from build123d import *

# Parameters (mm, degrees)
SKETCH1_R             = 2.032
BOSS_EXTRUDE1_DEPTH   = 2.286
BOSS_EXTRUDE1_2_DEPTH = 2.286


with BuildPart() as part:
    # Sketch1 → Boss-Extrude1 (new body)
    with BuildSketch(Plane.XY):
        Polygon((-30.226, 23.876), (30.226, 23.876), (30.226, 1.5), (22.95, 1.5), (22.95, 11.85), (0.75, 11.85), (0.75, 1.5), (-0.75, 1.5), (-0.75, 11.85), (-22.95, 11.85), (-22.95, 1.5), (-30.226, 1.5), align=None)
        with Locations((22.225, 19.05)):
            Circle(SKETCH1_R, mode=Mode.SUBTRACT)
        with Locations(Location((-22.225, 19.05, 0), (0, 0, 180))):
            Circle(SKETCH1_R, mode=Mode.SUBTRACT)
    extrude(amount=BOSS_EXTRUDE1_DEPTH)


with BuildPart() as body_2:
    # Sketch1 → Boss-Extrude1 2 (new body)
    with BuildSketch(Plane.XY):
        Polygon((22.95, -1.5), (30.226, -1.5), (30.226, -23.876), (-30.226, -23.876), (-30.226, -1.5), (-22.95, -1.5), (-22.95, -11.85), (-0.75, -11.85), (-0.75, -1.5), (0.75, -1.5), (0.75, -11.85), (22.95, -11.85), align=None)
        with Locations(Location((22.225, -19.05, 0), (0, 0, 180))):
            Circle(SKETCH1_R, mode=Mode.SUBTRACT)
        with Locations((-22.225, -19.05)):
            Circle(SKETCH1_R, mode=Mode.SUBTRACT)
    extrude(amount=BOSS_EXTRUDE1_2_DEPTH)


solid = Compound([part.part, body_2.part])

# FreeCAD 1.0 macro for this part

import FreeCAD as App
import Part
import Sketcher
Q = App.Units.Quantity

doc = App.newDocument("Part")
params = doc.addObject("Spreadsheet::Sheet", "Params")
for row, (alias, value) in enumerate([
    ("sketch1_diameter", "0.16 in"),
    ("sketch1_width", "2.38 in"),
    ("pad1_length", "0.09 in"),
    ("sketch2_diameter", "0.16 in"),
    ("sketch2_width", "2.38 in"),
    ("pad2_length", "0.09 in"),
], start=1):
    params.set(f"A{row}", alias)
    params.set(f"B{row}", "=" + value)
    params.setAlias(f"B{row}", alias)

body = doc.addObject("PartDesign::Body", "Body")

# Sketch on XY plane
sketch1 = body.newObject("Sketcher::SketchObject", "Sketch")
sketch1.AttachmentSupport = (doc.getObject("XY_Plane"), [""])
sketch1.MapMode = "FlatFace"
sketch1.addGeometry([
    Part.LineSegment(App.Vector(30.226, 23.876, 0), App.Vector(-30.226, 23.876, 0)),  # 0
    Part.LineSegment(App.Vector(-30.226, 23.876, 0), App.Vector(-30.226, 1.5, 0)),  # 1
    Part.LineSegment(App.Vector(-30.226, 1.5, 0), App.Vector(-22.95, 1.5, 0)),  # 2
    Part.LineSegment(App.Vector(-22.95, 1.5, 0), App.Vector(-22.95, 11.85, 0)),  # 3
    Part.LineSegment(App.Vector(-22.95, 11.85, 0), App.Vector(-0.75, 11.85, 0)),  # 4
    Part.LineSegment(App.Vector(-0.75, 11.85, 0), App.Vector(-0.75, 1.5, 0)),  # 5
    Part.LineSegment(App.Vector(-0.75, 1.5, 0), App.Vector(0.75, 1.5, 0)),  # 6
    Part.LineSegment(App.Vector(0.75, 1.5, 0), App.Vector(0.75, 11.85, 0)),  # 7
    Part.LineSegment(App.Vector(0.75, 11.85, 0), App.Vector(22.95, 11.85, 0)),  # 8
    Part.LineSegment(App.Vector(22.95, 11.85, 0), App.Vector(22.95, 1.5, 0)),  # 9
    Part.LineSegment(App.Vector(22.95, 1.5, 0), App.Vector(30.226, 1.5, 0)),  # 10
    Part.LineSegment(App.Vector(30.226, 1.5, 0), App.Vector(30.226, 23.876, 0)),  # 11
    Part.Circle(App.Vector(22.225, 19.05, 0), App.Vector(0, 0, 1), 2.032),  # 12
    Part.Circle(App.Vector(-22.225, 19.05, 0), App.Vector(0, 0, 1), 2.032),  # 13
], False)
sketch1.addConstraint([
    Sketcher.Constraint("Coincident", 0, 2, 1, 1),
    Sketcher.Constraint("Coincident", 1, 2, 2, 1),
    Sketcher.Constraint("Coincident", 2, 2, 3, 1),
    Sketcher.Constraint("Coincident", 3, 2, 4, 1),
    Sketcher.Constraint("Coincident", 4, 2, 5, 1),
    Sketcher.Constraint("Coincident", 5, 2, 6, 1),
    Sketcher.Constraint("Coincident", 6, 2, 7, 1),
    Sketcher.Constraint("Coincident", 7, 2, 8, 1),
    Sketcher.Constraint("Coincident", 8, 2, 9, 1),
    Sketcher.Constraint("Coincident", 9, 2, 10, 1),
    Sketcher.Constraint("Coincident", 10, 2, 11, 1),
    Sketcher.Constraint("Coincident", 11, 2, 0, 1),
    Sketcher.Constraint("Horizontal", 0),
    Sketcher.Constraint("Vertical", 1),
    Sketcher.Constraint("Horizontal", 2),
    Sketcher.Constraint("Vertical", 3),
    Sketcher.Constraint("Horizontal", 4),
    Sketcher.Constraint("Vertical", 5),
    Sketcher.Constraint("Horizontal", 6),
    Sketcher.Constraint("Vertical", 7),
    Sketcher.Constraint("Horizontal", 8),
    Sketcher.Constraint("Vertical", 9),
    Sketcher.Constraint("Horizontal", 10),
    Sketcher.Constraint("Vertical", 11),
    Sketcher.Constraint("Equal", 12, 13),
    Sketcher.Constraint("Symmetric", 12, 3, 13, 3, -2),
    Sketcher.Constraint("Symmetric", 4, 2, 7, 2, -2),
    Sketcher.Constraint("Symmetric", 2, 2, 9, 2, -2),
    Sketcher.Constraint("Horizontal", 2, 2, 5, 2),
    Sketcher.Constraint("Equal", 2, 10),
    Sketcher.Constraint("Diameter", 12, Q("0.16 in")),
    Sketcher.Constraint("DistanceX", 0, 2, 0, 1, Q("2.38 in")),
    Sketcher.Constraint("DistanceY", -1, 1, 12, 3, Q("0.75 in")),
    Sketcher.Constraint("DistanceY", -1, 1, 0, 2, Q("0.94 in")),
    Sketcher.Constraint("DistanceX", 13, 3, 12, 3, Q("1.75 in")),
    Sketcher.Constraint("DistanceX", 2, 1, 2, 2, 7.276),
    Sketcher.Constraint("DistanceX", 4, 1, 4, 2, 22.2),
    Sketcher.Constraint("DistanceY", 1, 2, 1, 1, 22.376),
    Sketcher.Constraint("DistanceY", 3, 1, 3, 2, 10.35),
])
sketch1.setExpression("Constraints[30]", "Params.sketch1_diameter")
sketch1.setExpression("Constraints[31]", "Params.sketch1_width")
pad1 = body.newObject("PartDesign::Pad", "Pad")
pad1.Profile = sketch1
pad1.setExpression("Length", "Params.pad1_length")
body2 = doc.addObject("PartDesign::Body", "Body001")

# Sketch on XY plane
sketch2 = body2.newObject("Sketcher::SketchObject", "Sketch001")
sketch2.AttachmentSupport = (doc.getObject("XY_Plane001"), [""])
sketch2.MapMode = "FlatFace"
sketch2.addGeometry([
    Part.LineSegment(App.Vector(30.226, -1.5, 0), App.Vector(22.95, -1.5, 0)),  # 0
    Part.LineSegment(App.Vector(22.95, -1.5, 0), App.Vector(22.95, -11.85, 0)),  # 1
    Part.LineSegment(App.Vector(22.95, -11.85, 0), App.Vector(0.75, -11.85, 0)),  # 2
    Part.LineSegment(App.Vector(0.75, -11.85, 0), App.Vector(0.75, -1.5, 0)),  # 3
    Part.LineSegment(App.Vector(0.75, -1.5, 0), App.Vector(-0.75, -1.5, 0)),  # 4
    Part.LineSegment(App.Vector(-0.75, -1.5, 0), App.Vector(-0.75, -11.85, 0)),  # 5
    Part.LineSegment(App.Vector(-0.75, -11.85, 0), App.Vector(-22.95, -11.85, 0)),  # 6
    Part.LineSegment(App.Vector(-22.95, -11.85, 0), App.Vector(-22.95, -1.5, 0)),  # 7
    Part.LineSegment(App.Vector(-22.95, -1.5, 0), App.Vector(-30.226, -1.5, 0)),  # 8
    Part.LineSegment(App.Vector(-30.226, -1.5, 0), App.Vector(-30.226, -23.876, 0)),  # 9
    Part.LineSegment(App.Vector(-30.226, -23.876, 0), App.Vector(30.226, -23.876, 0)),  # 10
    Part.LineSegment(App.Vector(30.226, -23.876, 0), App.Vector(30.226, -1.5, 0)),  # 11
    Part.Circle(App.Vector(22.225, -19.05, 0), App.Vector(0, 0, 1), 2.032),  # 12
    Part.Circle(App.Vector(-22.225, -19.05, 0), App.Vector(0, 0, 1), 2.032),  # 13
], False)
sketch2.addConstraint([
    Sketcher.Constraint("Coincident", 0, 2, 1, 1),
    Sketcher.Constraint("Coincident", 1, 2, 2, 1),
    Sketcher.Constraint("Coincident", 2, 2, 3, 1),
    Sketcher.Constraint("Coincident", 3, 2, 4, 1),
    Sketcher.Constraint("Coincident", 4, 2, 5, 1),
    Sketcher.Constraint("Coincident", 5, 2, 6, 1),
    Sketcher.Constraint("Coincident", 6, 2, 7, 1),
    Sketcher.Constraint("Coincident", 7, 2, 8, 1),
    Sketcher.Constraint("Coincident", 8, 2, 9, 1),
    Sketcher.Constraint("Coincident", 9, 2, 10, 1),
    Sketcher.Constraint("Coincident", 10, 2, 11, 1),
    Sketcher.Constraint("Coincident", 11, 2, 0, 1),
    Sketcher.Constraint("Horizontal", 0),
    Sketcher.Constraint("Vertical", 1),
    Sketcher.Constraint("Horizontal", 2),
    Sketcher.Constraint("Vertical", 3),
    Sketcher.Constraint("Horizontal", 4),
    Sketcher.Constraint("Vertical", 5),
    Sketcher.Constraint("Horizontal", 6),
    Sketcher.Constraint("Vertical", 7),
    Sketcher.Constraint("Horizontal", 8),
    Sketcher.Constraint("Vertical", 9),
    Sketcher.Constraint("Horizontal", 10),
    Sketcher.Constraint("Vertical", 11),
    Sketcher.Constraint("Equal", 12, 13),
    Sketcher.Constraint("Symmetric", 12, 3, 13, 3, -2),
    Sketcher.Constraint("Symmetric", 2, 2, 5, 2, -2),
    Sketcher.Constraint("Symmetric", 0, 2, 7, 2, -2),
    Sketcher.Constraint("Horizontal", 0, 2, 3, 2),
    Sketcher.Constraint("Equal", 0, 8),
    Sketcher.Constraint("Diameter", 12, Q("0.16 in")),
    Sketcher.Constraint("DistanceX", 10, 1, 10, 2, Q("2.38 in")),
    Sketcher.Constraint("DistanceY", 12, 3, -1, 1, Q("0.75 in")),
    Sketcher.Constraint("DistanceY", 9, 2, -1, 1, Q("0.94 in")),
    Sketcher.Constraint("DistanceX", 13, 3, 12, 3, Q("1.75 in")),
    Sketcher.Constraint("DistanceX", 0, 2, 0, 1, 7.276),
    Sketcher.Constraint("DistanceX", 2, 2, 2, 1, 22.2),
    Sketcher.Constraint("DistanceY", 1, 2, 1, 1, 10.35),
    Sketcher.Constraint("DistanceY", 9, 2, 9, 1, 22.376),
])
sketch2.setExpression("Constraints[30]", "Params.sketch2_diameter")
sketch2.setExpression("Constraints[31]", "Params.sketch2_width")
pad2 = body2.newObject("PartDesign::Pad", "Pad001")
pad2.Profile = sketch2
pad2.setExpression("Length", "Params.pad2_length")

doc.recompute()
